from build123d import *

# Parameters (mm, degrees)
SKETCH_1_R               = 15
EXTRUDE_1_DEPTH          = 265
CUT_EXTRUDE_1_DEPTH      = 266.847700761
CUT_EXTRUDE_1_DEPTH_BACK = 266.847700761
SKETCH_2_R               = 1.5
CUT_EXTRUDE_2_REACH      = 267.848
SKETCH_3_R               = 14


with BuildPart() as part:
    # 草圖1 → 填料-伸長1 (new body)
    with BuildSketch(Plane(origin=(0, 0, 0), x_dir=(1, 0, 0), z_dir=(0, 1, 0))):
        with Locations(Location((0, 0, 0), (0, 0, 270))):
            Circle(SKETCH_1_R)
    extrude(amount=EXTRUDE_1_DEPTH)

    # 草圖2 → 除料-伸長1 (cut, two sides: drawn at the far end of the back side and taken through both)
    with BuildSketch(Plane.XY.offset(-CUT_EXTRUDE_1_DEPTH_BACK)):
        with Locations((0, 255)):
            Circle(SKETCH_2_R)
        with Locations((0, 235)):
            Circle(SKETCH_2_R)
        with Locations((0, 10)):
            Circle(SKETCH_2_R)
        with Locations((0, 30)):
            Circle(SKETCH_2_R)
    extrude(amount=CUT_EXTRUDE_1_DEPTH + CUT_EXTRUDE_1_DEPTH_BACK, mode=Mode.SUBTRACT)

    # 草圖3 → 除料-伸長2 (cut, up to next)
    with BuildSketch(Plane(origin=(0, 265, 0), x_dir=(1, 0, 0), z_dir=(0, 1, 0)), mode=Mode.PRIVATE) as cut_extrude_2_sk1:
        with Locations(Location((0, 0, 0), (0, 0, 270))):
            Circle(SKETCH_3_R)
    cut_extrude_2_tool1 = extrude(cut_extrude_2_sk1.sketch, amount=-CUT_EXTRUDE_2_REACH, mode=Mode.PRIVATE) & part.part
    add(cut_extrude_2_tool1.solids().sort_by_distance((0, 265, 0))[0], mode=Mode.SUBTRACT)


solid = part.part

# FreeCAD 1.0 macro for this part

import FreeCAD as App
import Part
import Sketcher
from FreeCAD import Vector

doc = App.newDocument("Part")
params = doc.addObject("Spreadsheet::Sheet", "Params")
for row, (alias, value) in enumerate([
    ("sketch1_diameter", "30 mm"),
    ("pad1_length", "265 mm"),
    ("sketch2_diameter", "3 mm"),
    ("sketch3_diameter", "28 mm"),
    ("pocket2_length", "265 mm"),
], start=1):
    params.set(f"A{row}", alias)
    params.set(f"B{row}", "=" + value)
    params.setAlias(f"B{row}", alias)

body = doc.addObject("PartDesign::Body", "Body")

# Sketch on XZ plane
sketch1 = doc.addObject("Sketcher::SketchObject", "Sketch")
body.addObject(sketch1)
sketch1.AttachmentSupport = (doc.XZ_Plane, [""])
sketch1.MapMode = "FlatFace"
sketch1.addGeometry(Part.Circle(Vector(0, 0, 0), Vector(0, 0, 1), 15), False)
sketch1.addConstraint(Sketcher.Constraint("Coincident", 0, 3, -1, 1))
sketch1.addConstraint(Sketcher.Constraint("Diameter", 0, 30.0))
sketch1.setExpression("Constraints[1]", "Params.sketch1_diameter")
pad1 = doc.addObject("PartDesign::Pad", "Pad")
body.addObject(pad1)
pad1.Profile = sketch1
pad1.setExpression("Length", "Params.pad1_length")
pad1.Reversed = True

# Sketch on XY plane
sketch2 = doc.addObject("Sketcher::SketchObject", "Sketch001")
body.addObject(sketch2)
sketch2.AttachmentSupport = (doc.XY_Plane, [""])
sketch2.MapMode = "FlatFace"
sketch2.addGeometry(Part.Circle(Vector(0, 255, 0), Vector(0, 0, 1), 1.5), False)
sketch2.addGeometry(Part.Circle(Vector(0, 235, 0), Vector(0, 0, 1), 1.5), False)
sketch2.addGeometry(Part.Circle(Vector(0, 10, 0), Vector(0, 0, 1), 1.5), False)
sketch2.addGeometry(Part.Circle(Vector(0, 30, 0), Vector(0, 0, 1), 1.5), False)
sketch2.addConstraint(Sketcher.Constraint("Equal", 0, 1))
sketch2.addConstraint(Sketcher.Constraint("Equal", 1, 2))
sketch2.addConstraint(Sketcher.Constraint("Equal", 2, 3))
sketch2.addConstraint(Sketcher.Constraint("PointOnObject", 0, 3, -2))
sketch2.addConstraint(Sketcher.Constraint("PointOnObject", 1, 3, -2))
sketch2.addConstraint(Sketcher.Constraint("PointOnObject", 2, 3, -2))
sketch2.addConstraint(Sketcher.Constraint("PointOnObject", 3, 3, -2))
sketch2.addConstraint(Sketcher.Constraint("Diameter", 0, 3.0))
sketch2.addConstraint(Sketcher.Constraint("DistanceY", -1, 1, 0, 3, 255.0))
sketch2.addConstraint(Sketcher.Constraint("DistanceY", -1, 1, 1, 3, 235.0))
sketch2.addConstraint(Sketcher.Constraint("DistanceY", -1, 1, 2, 3, 10.0))
sketch2.addConstraint(Sketcher.Constraint("DistanceY", -1, 1, 3, 3, 30.0))
sketch2.setExpression("Constraints[7]", "Params.sketch2_diameter")
pocket1 = doc.addObject("PartDesign::Pocket", "Pocket")
body.addObject(pocket1)
pocket1.Profile = sketch2
pocket1.Type = "ThroughAll"
pocket1.Midplane = True

# Sketch on XZ plane
sketch3 = doc.addObject("Sketcher::SketchObject", "Sketch002")
body.addObject(sketch3)
sketch3.AttachmentSupport = (doc.XZ_Plane, [""])
sketch3.MapMode = "FlatFace"
sketch3.AttachmentOffset = App.Placement(Vector(0, 0, -265), App.Rotation())
sketch3.addGeometry(Part.Circle(Vector(0, 0, 0), Vector(0, 0, 1), 14), False)
sketch3.addConstraint(Sketcher.Constraint("Coincident", 0, 3, -1, 1))
sketch3.addConstraint(Sketcher.Constraint("Diameter", 0, 28.0))
sketch3.setExpression("Constraints[1]", "Params.sketch3_diameter")
pocket2 = doc.addObject("PartDesign::Pocket", "Pocket001")
body.addObject(pocket2)
pocket2.Profile = sketch3
pocket2.setExpression("Length", "Params.pocket2_length")
pocket2.Reversed = True

doc.recompute()
